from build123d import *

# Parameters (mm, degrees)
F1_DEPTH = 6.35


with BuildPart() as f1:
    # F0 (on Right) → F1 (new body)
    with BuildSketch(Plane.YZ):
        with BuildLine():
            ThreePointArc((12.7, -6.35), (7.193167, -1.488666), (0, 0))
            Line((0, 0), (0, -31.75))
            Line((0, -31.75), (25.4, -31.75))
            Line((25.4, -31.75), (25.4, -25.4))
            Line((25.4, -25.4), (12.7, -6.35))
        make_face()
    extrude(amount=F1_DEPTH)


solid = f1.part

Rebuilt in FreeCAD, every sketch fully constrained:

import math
import FreeCAD as App
import Part
import Sketcher
from FreeCAD import Vector
Q = App.Units.Quantity

doc = App.newDocument("Part")
body = doc.addObject("PartDesign::Body", "Body")

sketch1 = body.newObject("Sketcher::SketchObject", "Sketch")
sketch1.AttachmentSupport = (doc.getObject("YZ_Plane"), [""])
sketch1.MapMode = "FlatFace"
sketch1.addGeometry(Part.ArcOfCircle(Part.Circle(Vector(1, -14, 0), Vector(0, 0, 1), 14), math.radians(34), math.radians(93)), False)
sketch1.addGeometry(Part.LineSegment(Vector(0, 0, 0), Vector(0, -32, 0)), False)
sketch1.addGeometry(Part.LineSegment(Vector(0, -32, 0), Vector(25, -32, 0)), False)
sketch1.addGeometry(Part.LineSegment(Vector(25, -32, 0), Vector(25, -25, 0)), False)
sketch1.addGeometry(Part.LineSegment(Vector(25, -25, 0), Vector(13, -6, 0)), False)
sketch1.addConstraint(Sketcher.Constraint("Coincident", 0, 2, 1, 1))
sketch1.addConstraint(Sketcher.Constraint("Coincident", 1, 2, 2, 1))
sketch1.addConstraint(Sketcher.Constraint("Coincident", 2, 2, 3, 1))
sketch1.addConstraint(Sketcher.Constraint("Coincident", 3, 2, 4, 1))
sketch1.addConstraint(Sketcher.Constraint("Tangent", 4, 2, 0, 1))
sketch1.addConstraint(Sketcher.Constraint("Vertical", 1))
sketch1.addConstraint(Sketcher.Constraint("Horizontal", 2))
sketch1.addConstraint(Sketcher.Constraint("Vertical", 3))
sketch1.addConstraint(Sketcher.Constraint("Coincident", 0, 2, -1, 1))
sketch1.addConstraint(Sketcher.Constraint("DistanceX", 2, 1, 2, 2, Q("1 in")))
sketch1.addConstraint(Sketcher.Constraint("DistanceY", 3, 2, -1, 1, Q("1 in")))
sketch1.addConstraint(Sketcher.Constraint("DistanceY", 1, 2, 4, 2, Q("1 in")))
sketch1.addConstraint(Sketcher.Constraint("DistanceY", 1, 2, 1, 1, Q("1.25 in")))
sketch1.addConstraint(Sketcher.Constraint("DistanceX", -1, 1, 4, 2, Q("0.5 in")))
pad1 = body.newObject("PartDesign::Pad", "Pad")
pad1.Profile = sketch1
pad1.Length = Q("0.25 in")

doc.recompute()
